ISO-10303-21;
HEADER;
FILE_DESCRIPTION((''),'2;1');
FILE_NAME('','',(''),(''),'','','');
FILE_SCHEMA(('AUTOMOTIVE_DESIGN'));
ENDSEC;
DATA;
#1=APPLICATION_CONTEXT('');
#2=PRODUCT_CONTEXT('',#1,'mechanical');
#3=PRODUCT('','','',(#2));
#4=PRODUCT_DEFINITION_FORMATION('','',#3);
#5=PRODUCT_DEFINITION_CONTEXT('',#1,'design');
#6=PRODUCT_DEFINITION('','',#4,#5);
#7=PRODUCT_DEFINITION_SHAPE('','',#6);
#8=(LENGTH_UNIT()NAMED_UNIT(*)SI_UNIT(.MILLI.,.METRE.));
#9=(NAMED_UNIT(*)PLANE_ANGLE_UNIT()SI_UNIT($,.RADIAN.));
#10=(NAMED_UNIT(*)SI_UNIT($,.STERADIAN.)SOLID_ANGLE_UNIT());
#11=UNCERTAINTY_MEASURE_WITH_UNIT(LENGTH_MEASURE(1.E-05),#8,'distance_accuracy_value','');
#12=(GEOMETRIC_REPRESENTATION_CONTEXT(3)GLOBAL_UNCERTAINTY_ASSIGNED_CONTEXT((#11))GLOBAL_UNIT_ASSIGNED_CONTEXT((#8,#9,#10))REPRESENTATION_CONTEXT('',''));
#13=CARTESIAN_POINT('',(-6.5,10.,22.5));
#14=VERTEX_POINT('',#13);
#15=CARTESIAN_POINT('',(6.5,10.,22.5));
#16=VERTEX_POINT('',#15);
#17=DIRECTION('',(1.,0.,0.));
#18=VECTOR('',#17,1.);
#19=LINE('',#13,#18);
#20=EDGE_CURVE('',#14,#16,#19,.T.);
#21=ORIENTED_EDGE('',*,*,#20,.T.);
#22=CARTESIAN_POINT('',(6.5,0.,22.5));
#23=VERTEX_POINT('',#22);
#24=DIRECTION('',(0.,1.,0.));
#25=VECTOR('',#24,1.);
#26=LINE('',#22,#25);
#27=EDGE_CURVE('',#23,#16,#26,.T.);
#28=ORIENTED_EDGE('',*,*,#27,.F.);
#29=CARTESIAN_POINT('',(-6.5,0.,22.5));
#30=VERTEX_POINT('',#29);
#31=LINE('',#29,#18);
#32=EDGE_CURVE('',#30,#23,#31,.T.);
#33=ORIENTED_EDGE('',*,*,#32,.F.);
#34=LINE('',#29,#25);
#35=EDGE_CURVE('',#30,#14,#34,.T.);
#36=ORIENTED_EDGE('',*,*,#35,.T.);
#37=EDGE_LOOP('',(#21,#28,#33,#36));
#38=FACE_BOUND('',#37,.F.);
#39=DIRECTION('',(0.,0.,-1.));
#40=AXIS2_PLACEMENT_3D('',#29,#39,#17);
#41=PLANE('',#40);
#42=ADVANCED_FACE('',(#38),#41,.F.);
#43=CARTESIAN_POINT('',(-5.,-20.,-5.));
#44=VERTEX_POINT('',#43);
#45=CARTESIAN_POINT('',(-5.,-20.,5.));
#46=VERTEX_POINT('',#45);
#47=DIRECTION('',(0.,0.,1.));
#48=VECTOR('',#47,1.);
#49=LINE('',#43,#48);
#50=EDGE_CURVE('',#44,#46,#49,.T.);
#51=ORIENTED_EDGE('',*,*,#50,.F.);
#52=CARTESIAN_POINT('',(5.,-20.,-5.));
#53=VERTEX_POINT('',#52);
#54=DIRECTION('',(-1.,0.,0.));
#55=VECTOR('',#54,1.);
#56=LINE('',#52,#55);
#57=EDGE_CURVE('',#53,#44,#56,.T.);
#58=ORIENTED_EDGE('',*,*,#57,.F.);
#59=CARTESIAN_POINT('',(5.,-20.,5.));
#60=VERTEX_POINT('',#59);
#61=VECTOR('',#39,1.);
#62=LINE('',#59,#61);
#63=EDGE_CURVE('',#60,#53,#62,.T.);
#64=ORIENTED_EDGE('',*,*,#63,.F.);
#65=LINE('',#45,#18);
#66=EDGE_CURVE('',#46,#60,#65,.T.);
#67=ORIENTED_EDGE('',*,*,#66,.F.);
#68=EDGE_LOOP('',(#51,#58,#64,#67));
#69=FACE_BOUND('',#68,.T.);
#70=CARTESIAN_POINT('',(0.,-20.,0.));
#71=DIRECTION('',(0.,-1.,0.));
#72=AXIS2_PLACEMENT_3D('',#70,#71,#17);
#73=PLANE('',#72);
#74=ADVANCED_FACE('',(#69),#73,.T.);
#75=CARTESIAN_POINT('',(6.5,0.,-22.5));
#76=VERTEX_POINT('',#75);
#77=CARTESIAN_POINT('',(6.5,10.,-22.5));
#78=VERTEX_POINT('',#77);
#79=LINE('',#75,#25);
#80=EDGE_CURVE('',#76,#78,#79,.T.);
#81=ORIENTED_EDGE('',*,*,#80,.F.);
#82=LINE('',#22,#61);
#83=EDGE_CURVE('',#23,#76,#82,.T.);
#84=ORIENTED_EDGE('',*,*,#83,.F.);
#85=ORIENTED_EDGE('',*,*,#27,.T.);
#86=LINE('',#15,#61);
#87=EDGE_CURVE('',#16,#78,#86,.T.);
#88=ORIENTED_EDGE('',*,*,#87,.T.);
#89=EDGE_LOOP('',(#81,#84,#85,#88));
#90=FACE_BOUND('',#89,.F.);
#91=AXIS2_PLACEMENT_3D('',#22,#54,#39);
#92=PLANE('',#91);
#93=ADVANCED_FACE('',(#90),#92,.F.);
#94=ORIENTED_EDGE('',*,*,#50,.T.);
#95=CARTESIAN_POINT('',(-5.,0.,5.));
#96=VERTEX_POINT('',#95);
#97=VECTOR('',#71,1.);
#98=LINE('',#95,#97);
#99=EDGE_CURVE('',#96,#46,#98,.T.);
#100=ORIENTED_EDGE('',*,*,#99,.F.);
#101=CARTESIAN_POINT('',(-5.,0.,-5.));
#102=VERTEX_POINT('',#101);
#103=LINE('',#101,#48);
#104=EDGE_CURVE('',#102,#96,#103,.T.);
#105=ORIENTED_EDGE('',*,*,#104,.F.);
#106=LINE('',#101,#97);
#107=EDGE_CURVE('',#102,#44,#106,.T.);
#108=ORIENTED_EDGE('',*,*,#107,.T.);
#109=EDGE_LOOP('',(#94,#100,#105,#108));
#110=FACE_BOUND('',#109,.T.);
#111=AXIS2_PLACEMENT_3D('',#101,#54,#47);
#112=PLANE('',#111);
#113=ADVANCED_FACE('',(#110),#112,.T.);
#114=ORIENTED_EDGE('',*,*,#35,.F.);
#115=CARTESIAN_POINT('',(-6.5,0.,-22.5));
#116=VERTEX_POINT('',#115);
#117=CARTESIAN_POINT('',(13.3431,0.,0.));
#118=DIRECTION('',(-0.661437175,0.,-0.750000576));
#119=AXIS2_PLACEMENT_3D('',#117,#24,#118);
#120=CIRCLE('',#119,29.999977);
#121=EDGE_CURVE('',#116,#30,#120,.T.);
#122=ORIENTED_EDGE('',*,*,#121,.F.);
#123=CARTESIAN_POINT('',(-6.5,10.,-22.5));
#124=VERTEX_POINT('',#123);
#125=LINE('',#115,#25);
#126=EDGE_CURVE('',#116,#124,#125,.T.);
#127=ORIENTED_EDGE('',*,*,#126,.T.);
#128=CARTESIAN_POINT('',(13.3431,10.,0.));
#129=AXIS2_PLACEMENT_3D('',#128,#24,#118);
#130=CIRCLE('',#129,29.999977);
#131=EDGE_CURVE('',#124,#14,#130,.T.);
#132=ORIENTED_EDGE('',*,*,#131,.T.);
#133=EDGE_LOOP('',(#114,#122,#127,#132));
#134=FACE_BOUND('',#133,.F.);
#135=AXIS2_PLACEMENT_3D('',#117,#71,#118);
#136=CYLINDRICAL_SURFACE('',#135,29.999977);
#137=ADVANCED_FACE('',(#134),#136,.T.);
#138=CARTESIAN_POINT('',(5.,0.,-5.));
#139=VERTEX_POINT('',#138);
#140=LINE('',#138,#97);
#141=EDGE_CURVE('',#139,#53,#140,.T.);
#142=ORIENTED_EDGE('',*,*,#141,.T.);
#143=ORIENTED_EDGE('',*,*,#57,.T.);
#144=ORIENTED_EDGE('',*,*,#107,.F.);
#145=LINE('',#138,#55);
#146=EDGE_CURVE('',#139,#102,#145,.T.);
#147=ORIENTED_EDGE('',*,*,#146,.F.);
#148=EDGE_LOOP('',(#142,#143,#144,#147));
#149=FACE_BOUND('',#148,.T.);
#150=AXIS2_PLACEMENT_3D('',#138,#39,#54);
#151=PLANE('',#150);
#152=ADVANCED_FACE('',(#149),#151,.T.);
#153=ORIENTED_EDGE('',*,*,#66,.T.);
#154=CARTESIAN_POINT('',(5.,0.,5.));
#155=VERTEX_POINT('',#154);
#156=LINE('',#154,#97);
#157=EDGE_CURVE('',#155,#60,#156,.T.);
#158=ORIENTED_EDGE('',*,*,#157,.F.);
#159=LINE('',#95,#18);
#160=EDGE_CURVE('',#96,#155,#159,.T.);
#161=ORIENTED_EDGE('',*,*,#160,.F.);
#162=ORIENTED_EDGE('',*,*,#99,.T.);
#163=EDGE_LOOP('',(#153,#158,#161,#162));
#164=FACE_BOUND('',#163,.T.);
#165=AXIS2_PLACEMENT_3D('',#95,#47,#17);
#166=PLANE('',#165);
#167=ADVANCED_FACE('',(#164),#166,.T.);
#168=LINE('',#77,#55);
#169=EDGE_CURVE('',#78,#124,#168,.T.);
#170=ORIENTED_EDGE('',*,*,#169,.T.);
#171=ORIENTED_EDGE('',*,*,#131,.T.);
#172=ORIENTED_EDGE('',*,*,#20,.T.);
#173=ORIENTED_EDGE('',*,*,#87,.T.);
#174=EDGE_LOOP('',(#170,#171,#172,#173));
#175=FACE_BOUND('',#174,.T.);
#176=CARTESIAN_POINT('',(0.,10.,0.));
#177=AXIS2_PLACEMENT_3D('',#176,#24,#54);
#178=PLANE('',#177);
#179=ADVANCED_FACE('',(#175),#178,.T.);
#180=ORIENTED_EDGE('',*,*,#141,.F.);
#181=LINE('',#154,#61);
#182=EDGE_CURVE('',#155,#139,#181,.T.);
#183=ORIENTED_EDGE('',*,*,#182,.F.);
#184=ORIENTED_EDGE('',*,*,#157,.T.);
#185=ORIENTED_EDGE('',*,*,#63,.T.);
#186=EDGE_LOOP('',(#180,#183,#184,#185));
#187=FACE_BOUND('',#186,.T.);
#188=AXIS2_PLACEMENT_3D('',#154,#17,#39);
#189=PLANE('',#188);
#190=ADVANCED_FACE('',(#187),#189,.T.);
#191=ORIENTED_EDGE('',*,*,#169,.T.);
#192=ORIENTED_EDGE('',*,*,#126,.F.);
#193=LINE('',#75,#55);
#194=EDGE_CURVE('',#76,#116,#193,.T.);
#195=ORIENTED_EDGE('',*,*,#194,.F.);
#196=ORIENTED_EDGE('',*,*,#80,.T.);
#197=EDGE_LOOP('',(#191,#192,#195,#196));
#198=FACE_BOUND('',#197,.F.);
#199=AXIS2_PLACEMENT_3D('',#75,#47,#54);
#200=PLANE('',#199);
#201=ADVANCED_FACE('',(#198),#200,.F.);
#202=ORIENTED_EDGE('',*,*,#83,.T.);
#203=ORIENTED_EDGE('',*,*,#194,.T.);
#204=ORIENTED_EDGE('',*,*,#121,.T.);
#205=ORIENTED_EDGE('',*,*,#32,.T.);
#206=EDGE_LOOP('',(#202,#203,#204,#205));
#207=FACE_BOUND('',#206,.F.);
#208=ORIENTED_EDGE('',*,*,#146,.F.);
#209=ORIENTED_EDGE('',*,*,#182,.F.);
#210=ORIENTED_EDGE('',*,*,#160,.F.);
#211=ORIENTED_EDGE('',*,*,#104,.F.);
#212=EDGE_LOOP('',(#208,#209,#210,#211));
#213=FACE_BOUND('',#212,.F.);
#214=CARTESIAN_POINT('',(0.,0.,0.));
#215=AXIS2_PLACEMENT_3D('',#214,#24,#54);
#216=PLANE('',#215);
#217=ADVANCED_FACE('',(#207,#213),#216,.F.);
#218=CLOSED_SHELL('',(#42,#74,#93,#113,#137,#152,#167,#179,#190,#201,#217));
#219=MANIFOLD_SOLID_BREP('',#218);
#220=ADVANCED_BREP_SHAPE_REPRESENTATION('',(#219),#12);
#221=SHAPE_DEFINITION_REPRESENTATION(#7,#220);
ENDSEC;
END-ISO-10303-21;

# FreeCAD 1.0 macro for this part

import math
import FreeCAD as App
import Part
import Sketcher
Q = App.Units.Quantity

doc = App.newDocument("Part")
body = doc.addObject("PartDesign::Body", "Body")

# Sketch on XZ plane
sketch1 = doc.addObject("Sketcher::SketchObject", "Sketch")
body.addObject(sketch1)
sketch1.AttachmentSupport = (doc.XZ_Plane, [""])
sketch1.MapMode = "FlatFace"
sketch1.addGeometry(Part.ArcOfCircle(Part.Circle(App.Vector(13, 0, 0), App.Vector(0, 0, 1), 30), math.radians(131), math.radians(229)), False)
sketch1.addGeometry(Part.LineSegment(App.Vector(-6, 22, 0), App.Vector(6, 22, 0)), False)
sketch1.addGeometry(Part.LineSegment(App.Vector(6, 22, 0), App.Vector(6, -22, 0)), False)
sketch1.addGeometry(Part.LineSegment(App.Vector(6, -22, 0), App.Vector(-6, -22, 0)), False)
sketch1.addConstraint(Sketcher.Constraint("Coincident", 0, 1, 1, 1))
sketch1.addConstraint(Sketcher.Constraint("Coincident", 1, 2, 2, 1))
sketch1.addConstraint(Sketcher.Constraint("Coincident", 2, 2, 3, 1))
sketch1.addConstraint(Sketcher.Constraint("Coincident", 3, 2, 0, 2))
sketch1.addConstraint(Sketcher.Constraint("Horizontal", 1))
sketch1.addConstraint(Sketcher.Constraint("Vertical", 2))
sketch1.addConstraint(Sketcher.Constraint("Horizontal", 3))
sketch1.addConstraint(Sketcher.Constraint("Symmetric", 0, 1, 2, 2, -1, 1))
sketch1.addConstraint(Sketcher.Constraint("PointOnObject", 0, 3, -1))
sketch1.addConstraint(Sketcher.Constraint("Radius", 0, Q("30 mm")))
sketch1.addConstraint(Sketcher.Constraint("DistanceX", 1, 1, 1, 2, Q("13 mm")))
sketch1.addConstraint(Sketcher.Constraint("DistanceY", 2, 2, 2, 1, Q("45 mm")))
pad1 = doc.addObject("PartDesign::Pad", "Pad")
body.addObject(pad1)
pad1.Profile = sketch1
pad1.Length = 10
pad1.Reversed = True

# Sketch on XZ plane
sketch2 = doc.addObject("Sketcher::SketchObject", "Sketch001")
body.addObject(sketch2)
sketch2.AttachmentSupport = (doc.XZ_Plane, [""])
sketch2.MapMode = "FlatFace"
sketch2.addGeometry(Part.LineSegment(App.Vector(5, 5, 0), App.Vector(-5, 5, 0)), False)
sketch2.addGeometry(Part.LineSegment(App.Vector(-5, 5, 0), App.Vector(-5, -5, 0)), False)
sketch2.addGeometry(Part.LineSegment(App.Vector(-5, -5, 0), App.Vector(5, -5, 0)), False)
sketch2.addGeometry(Part.LineSegment(App.Vector(5, -5, 0), App.Vector(5, 5, 0)), False)
sketch2.addConstraint(Sketcher.Constraint("Coincident", 0, 2, 1, 1))
sketch2.addConstraint(Sketcher.Constraint("Coincident", 1, 2, 2, 1))
sketch2.addConstraint(Sketcher.Constraint("Coincident", 2, 2, 3, 1))
sketch2.addConstraint(Sketcher.Constraint("Coincident", 3, 2, 0, 1))
sketch2.addConstraint(Sketcher.Constraint("Horizontal", 0))
sketch2.addConstraint(Sketcher.Constraint("Vertical", 1))
sketch2.addConstraint(Sketcher.Constraint("Horizontal", 2))
sketch2.addConstraint(Sketcher.Constraint("Vertical", 3))
sketch2.addConstraint(Sketcher.Constraint("Symmetric", 0, 2, 2, 2, -1, 1))
sketch2.addConstraint(Sketcher.Constraint("Equal", 2, 1))
sketch2.addConstraint(Sketcher.Constraint("DistanceX", 0, 2, 0, 1, Q("10 mm")))
pad2 = doc.addObject("PartDesign::Pad", "Pad001")
body.addObject(pad2)
pad2.Profile = sketch2
pad2.Length = 20

doc.recompute()
